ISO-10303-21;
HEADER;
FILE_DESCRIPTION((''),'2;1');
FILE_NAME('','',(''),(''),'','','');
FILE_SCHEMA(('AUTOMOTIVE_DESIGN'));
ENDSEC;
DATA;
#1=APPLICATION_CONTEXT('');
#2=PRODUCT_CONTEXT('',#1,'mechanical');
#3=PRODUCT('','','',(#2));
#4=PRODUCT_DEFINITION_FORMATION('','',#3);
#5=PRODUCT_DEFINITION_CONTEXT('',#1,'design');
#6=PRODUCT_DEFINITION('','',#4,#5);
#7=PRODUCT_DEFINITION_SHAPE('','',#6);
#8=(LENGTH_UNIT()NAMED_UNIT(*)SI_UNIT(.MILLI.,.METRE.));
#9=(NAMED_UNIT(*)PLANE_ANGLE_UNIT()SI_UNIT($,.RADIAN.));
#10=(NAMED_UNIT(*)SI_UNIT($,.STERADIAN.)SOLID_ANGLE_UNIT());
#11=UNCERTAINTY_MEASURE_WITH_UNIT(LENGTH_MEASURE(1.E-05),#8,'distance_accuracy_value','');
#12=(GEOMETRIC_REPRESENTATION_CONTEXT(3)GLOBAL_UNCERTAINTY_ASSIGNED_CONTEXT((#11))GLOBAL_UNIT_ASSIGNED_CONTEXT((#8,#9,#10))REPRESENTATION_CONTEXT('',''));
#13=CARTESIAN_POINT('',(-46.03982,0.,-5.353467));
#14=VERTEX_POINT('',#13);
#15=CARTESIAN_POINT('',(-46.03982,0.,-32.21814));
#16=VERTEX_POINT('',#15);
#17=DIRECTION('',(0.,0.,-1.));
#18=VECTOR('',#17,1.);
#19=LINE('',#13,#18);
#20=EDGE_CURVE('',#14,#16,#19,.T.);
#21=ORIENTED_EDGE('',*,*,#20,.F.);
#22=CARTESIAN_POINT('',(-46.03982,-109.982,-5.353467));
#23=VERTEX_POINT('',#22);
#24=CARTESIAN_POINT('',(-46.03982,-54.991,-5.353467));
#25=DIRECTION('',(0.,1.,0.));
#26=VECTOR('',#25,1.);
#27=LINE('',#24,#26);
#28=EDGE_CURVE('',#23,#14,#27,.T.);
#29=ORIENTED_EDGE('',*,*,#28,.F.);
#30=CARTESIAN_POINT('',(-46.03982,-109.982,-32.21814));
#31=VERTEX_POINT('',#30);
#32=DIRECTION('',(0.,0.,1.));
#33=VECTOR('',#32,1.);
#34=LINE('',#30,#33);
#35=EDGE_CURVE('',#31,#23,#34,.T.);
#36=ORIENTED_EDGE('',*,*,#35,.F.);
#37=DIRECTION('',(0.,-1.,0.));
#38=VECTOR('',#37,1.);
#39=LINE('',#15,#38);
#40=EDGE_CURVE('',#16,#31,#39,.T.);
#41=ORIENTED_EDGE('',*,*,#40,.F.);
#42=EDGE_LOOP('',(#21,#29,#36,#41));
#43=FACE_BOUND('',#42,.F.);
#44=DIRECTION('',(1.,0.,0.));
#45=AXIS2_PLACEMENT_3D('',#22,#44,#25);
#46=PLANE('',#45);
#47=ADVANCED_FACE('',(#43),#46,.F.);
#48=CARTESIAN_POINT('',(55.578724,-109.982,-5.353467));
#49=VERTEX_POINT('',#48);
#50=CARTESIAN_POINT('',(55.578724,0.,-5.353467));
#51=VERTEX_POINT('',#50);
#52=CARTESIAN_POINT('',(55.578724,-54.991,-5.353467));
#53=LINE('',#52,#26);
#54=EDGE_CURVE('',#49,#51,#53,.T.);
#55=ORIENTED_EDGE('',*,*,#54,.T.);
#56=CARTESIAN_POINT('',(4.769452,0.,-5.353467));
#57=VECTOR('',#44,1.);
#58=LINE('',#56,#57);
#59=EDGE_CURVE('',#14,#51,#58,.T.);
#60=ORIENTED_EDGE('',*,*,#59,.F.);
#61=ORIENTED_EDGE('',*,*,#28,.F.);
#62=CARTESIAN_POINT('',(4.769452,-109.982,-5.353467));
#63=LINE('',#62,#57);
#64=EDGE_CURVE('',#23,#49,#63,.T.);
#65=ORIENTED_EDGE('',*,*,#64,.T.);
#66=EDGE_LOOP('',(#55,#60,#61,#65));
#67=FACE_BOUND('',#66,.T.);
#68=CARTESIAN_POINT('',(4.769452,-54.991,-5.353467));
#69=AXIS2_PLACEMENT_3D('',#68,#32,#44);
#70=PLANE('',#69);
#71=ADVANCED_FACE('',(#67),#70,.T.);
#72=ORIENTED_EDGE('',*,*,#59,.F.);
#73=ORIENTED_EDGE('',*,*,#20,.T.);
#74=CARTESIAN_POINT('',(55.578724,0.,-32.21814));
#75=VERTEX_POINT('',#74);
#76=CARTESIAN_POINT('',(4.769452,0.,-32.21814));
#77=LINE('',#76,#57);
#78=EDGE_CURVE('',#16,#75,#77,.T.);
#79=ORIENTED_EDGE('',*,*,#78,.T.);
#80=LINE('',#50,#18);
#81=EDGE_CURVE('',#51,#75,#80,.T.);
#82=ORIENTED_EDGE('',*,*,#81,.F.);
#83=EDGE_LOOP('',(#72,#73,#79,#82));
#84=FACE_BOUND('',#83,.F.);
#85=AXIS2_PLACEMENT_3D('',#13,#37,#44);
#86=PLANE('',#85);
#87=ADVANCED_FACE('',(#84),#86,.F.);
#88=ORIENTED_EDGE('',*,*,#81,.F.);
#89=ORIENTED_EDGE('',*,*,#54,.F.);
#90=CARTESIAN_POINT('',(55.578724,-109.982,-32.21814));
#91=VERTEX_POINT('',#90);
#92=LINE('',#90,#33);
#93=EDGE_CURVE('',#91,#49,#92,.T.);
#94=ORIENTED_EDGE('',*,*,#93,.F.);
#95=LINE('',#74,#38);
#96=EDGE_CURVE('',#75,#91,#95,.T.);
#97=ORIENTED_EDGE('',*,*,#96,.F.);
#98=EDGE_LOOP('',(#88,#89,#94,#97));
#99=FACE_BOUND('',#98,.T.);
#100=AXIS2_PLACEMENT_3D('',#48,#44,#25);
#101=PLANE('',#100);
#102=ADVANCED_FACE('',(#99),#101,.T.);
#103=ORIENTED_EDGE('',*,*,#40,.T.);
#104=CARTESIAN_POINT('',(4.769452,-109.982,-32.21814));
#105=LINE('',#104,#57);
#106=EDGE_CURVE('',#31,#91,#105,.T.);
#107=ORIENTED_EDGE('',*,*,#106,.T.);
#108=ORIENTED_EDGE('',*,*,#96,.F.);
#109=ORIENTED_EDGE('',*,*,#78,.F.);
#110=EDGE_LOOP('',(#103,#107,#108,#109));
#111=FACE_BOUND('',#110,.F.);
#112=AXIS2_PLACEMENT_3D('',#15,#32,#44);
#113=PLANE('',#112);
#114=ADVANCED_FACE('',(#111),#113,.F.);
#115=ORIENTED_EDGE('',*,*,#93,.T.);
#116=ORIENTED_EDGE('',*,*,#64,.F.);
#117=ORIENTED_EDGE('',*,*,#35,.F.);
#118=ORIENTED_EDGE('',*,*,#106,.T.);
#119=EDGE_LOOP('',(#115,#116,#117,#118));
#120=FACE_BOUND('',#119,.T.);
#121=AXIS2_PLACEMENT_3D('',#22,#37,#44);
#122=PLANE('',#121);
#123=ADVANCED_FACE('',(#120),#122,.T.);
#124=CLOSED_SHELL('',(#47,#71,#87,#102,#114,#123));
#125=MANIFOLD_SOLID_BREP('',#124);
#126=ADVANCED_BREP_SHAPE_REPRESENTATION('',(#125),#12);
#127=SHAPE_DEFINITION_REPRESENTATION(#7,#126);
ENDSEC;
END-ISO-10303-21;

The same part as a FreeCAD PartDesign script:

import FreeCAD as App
import Part
import Sketcher
Q = App.Units.Quantity

doc = App.newDocument("Part")
body = doc.addObject("PartDesign::Body", "Body")

sketch1 = body.newObject("Sketcher::SketchObject", "Sketch")
sketch1.AttachmentSupport = (doc.getObject("XZ_Plane"), [""])
sketch1.MapMode = "FlatFace"
sketch1.addGeometry([
    Part.LineSegment(App.Vector(-46.03982, -5.353467, 0), App.Vector(-46.03982, -32.21814, 0)),
    Part.LineSegment(App.Vector(-46.03982, -32.21814, 0), App.Vector(55.578724, -32.21814, 0)),
    Part.LineSegment(App.Vector(55.578724, -32.21814, 0), App.Vector(55.578724, -5.353467, 0)),
    Part.LineSegment(App.Vector(55.578724, -5.353467, 0), App.Vector(-46.03982, -5.353467, 0)),
], False)
sketch1.addConstraint([
    Sketcher.Constraint("Coincident", 0, 2, 1, 1),
    Sketcher.Constraint("Coincident", 1, 2, 2, 1),
    Sketcher.Constraint("Coincident", 2, 2, 3, 1),
    Sketcher.Constraint("Coincident", 3, 2, 0, 1),
    Sketcher.Constraint("Vertical", 0),
    Sketcher.Constraint("Horizontal", 1),
    Sketcher.Constraint("Vertical", 2),
    Sketcher.Constraint("Horizontal", 3),
    Sketcher.Constraint("DistanceX", 1, 1, 1, 2, Q("101.618544 mm")),
    Sketcher.Constraint("DistanceY", 0, 2, 0, 1, Q("26.864673 mm")),
    Sketcher.Constraint("DistanceX", 0, 2, -1, 1, Q("46.03982 mm")),
    Sketcher.Constraint("DistanceY", 0, 2, -1, 1, Q("32.21814 mm")),
])
pad1 = body.newObject("PartDesign::Pad", "Pad")
pad1.Profile = sketch1
pad1.Length = Q("4.33 in")

sketch2 = body.newObject("Sketcher::SketchObject", "Sketch001")
sketch2.AttachmentSupport = (doc.getObject("XY_Plane"), [""])
sketch2.MapMode = "FlatFace"
sketch2.AttachmentOffset = App.Placement(App.Vector(0, 0, -5.353467), App.Rotation())
sketch2.addGeometry([
    Part.LineSegment(App.Vector(-46.03982, 0, 0), App.Vector(-46.03982, -109.982, 0)),
    Part.LineSegment(App.Vector(-46.03982, -109.982, 0), App.Vector(55.578724, -109.982, 0)),
    Part.LineSegment(App.Vector(55.578724, -109.982, 0), App.Vector(55.578724, 0, 0)),
    Part.LineSegment(App.Vector(55.578724, 0, 0), App.Vector(-46.03982, 0, 0)),
], False)
sketch2.addConstraint([
    Sketcher.Constraint("Coincident", 0, 2, 1, 1),
    Sketcher.Constraint("Coincident", 1, 2, 2, 1),
    Sketcher.Constraint("Coincident", 2, 2, 3, 1),
    Sketcher.Constraint("Coincident", 3, 2, 0, 1),
    Sketcher.Constraint("Vertical", 0),
    Sketcher.Constraint("Horizontal", 1),
    Sketcher.Constraint("Vertical", 2),
    Sketcher.Constraint("Horizontal", 3),
    Sketcher.Constraint("PointOnObject", 2, 2, -1),
    Sketcher.Constraint("DistanceY", 0, 2, 0, 1, Q("4.33 in")),
    Sketcher.Constraint("DistanceX", 1, 1, 1, 2, Q("101.618544 mm")),
    Sketcher.Constraint("DistanceX", 0, 2, -1, 1, Q("46.03982 mm")),
])
pad2 = body.newObject("PartDesign::Pad", "Pad001")
pad2.Profile = sketch2
pad2.Length = Q("0.46 in")
pad2.Reversed = True

doc.recompute()
